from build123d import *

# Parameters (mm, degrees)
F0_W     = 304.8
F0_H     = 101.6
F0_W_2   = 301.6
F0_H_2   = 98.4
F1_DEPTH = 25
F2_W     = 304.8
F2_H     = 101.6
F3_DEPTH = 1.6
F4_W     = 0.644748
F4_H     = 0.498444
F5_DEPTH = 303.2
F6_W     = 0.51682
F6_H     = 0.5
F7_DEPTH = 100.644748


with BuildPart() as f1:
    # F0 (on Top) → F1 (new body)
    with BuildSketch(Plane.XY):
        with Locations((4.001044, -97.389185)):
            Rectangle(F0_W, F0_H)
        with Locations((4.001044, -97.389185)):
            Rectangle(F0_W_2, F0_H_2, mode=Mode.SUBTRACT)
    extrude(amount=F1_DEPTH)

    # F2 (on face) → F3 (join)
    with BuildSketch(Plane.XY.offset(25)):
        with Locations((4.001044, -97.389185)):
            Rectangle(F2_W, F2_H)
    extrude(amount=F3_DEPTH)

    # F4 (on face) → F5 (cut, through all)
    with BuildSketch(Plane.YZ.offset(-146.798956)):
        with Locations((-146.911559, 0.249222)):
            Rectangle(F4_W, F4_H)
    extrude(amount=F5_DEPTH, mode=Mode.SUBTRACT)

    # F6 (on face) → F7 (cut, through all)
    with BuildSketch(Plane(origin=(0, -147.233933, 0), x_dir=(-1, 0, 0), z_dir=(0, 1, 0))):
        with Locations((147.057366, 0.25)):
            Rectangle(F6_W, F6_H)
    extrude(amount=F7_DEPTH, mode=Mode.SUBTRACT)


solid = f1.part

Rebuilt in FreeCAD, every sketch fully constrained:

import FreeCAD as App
import Part
import Sketcher
Q = App.Units.Quantity

doc = App.newDocument("Part")
body = doc.addObject("PartDesign::Body", "Body")

sketch1 = doc.addObject("Sketcher::SketchObject", "Sketch")
body.addObject(sketch1)
sketch1.AttachmentSupport = (doc.XY_Plane, [""])
sketch1.MapMode = "FlatFace"
sketch1.addGeometry([
    Part.LineSegment(App.Vector(-148.398956, -46.589185, 0), App.Vector(-148.398956, -148.189185, 0)),
    Part.LineSegment(App.Vector(-148.398956, -148.189185, 0), App.Vector(156.401044, -148.189185, 0)),
    Part.LineSegment(App.Vector(156.401044, -148.189185, 0), App.Vector(156.401044, -46.589185, 0)),
    Part.LineSegment(App.Vector(156.401044, -46.589185, 0), App.Vector(-148.398956, -46.589185, 0)),
    Part.LineSegment(App.Vector(154.801044, -146.589185, 0), App.Vector(-146.798956, -146.589185, 0)),
    Part.LineSegment(App.Vector(-146.798956, -146.589185, 0), App.Vector(-146.798956, -48.189185, 0)),
    Part.LineSegment(App.Vector(-146.798956, -48.189185, 0), App.Vector(154.801044, -48.189185, 0)),
    Part.LineSegment(App.Vector(154.801044, -48.189185, 0), App.Vector(154.801044, -146.589185, 0)),
], False)
sketch1.addConstraint([
    Sketcher.Constraint("Coincident", 0, 2, 1, 1),
    Sketcher.Constraint("Coincident", 1, 2, 2, 1),
    Sketcher.Constraint("Coincident", 2, 2, 3, 1),
    Sketcher.Constraint("Coincident", 3, 2, 0, 1),
    Sketcher.Constraint("Coincident", 4, 2, 5, 1),
    Sketcher.Constraint("Coincident", 5, 2, 6, 1),
    Sketcher.Constraint("Coincident", 6, 2, 7, 1),
    Sketcher.Constraint("Coincident", 7, 2, 4, 1),
    Sketcher.Constraint("Vertical", 0),
    Sketcher.Constraint("Horizontal", 1),
    Sketcher.Constraint("Vertical", 2),
    Sketcher.Constraint("Horizontal", 3),
    Sketcher.Constraint("Horizontal", 4),
    Sketcher.Constraint("Vertical", 5),
    Sketcher.Constraint("Horizontal", 6),
    Sketcher.Constraint("Vertical", 7),
    Sketcher.Constraint("DistanceX", 1, 1, 1, 2, Q("304.8 mm")),
    Sketcher.Constraint("DistanceX", 4, 2, 4, 1, Q("301.6 mm")),
    Sketcher.Constraint("DistanceY", 0, 2, 0, 1, Q("101.6 mm")),
    Sketcher.Constraint("DistanceY", 5, 1, 5, 2, Q("98.4 mm")),
    Sketcher.Constraint("DistanceY", 4, 2, 3, 2, Q("100 mm")),
    Sketcher.Constraint("DistanceX", 0, 2, 4, 2, Q("1.6 mm")),
    Sketcher.Constraint("DistanceX", 0, 2, -1, 1, Q("148.398956 mm")),
    Sketcher.Constraint("DistanceY", 0, 2, -1, 1, Q("148.189185 mm")),
])
pad1 = doc.addObject("PartDesign::Pad", "Pad")
body.addObject(pad1)
pad1.Profile = sketch1
pad1.Length = 25

sketch2 = doc.addObject("Sketcher::SketchObject", "Sketch001")
body.addObject(sketch2)
sketch2.AttachmentSupport = (doc.XY_Plane, [""])
sketch2.MapMode = "FlatFace"
sketch2.AttachmentOffset = App.Placement(App.Vector(0, 0, 25), App.Rotation())
sketch2.addGeometry([
    Part.LineSegment(App.Vector(-148.398956, -46.589185, 0), App.Vector(-148.398956, -148.189185, 0)),
    Part.LineSegment(App.Vector(-148.398956, -148.189185, 0), App.Vector(156.401044, -148.189185, 0)),
    Part.LineSegment(App.Vector(156.401044, -148.189185, 0), App.Vector(156.401044, -46.589185, 0)),
    Part.LineSegment(App.Vector(156.401044, -46.589185, 0), App.Vector(-148.398956, -46.589185, 0)),
], False)
sketch2.addConstraint([
    Sketcher.Constraint("Coincident", 0, 2, 1, 1),
    Sketcher.Constraint("Coincident", 1, 2, 2, 1),
    Sketcher.Constraint("Coincident", 2, 2, 3, 1),
    Sketcher.Constraint("Coincident", 3, 2, 0, 1),
    Sketcher.Constraint("Vertical", 0),
    Sketcher.Constraint("Horizontal", 1),
    Sketcher.Constraint("Vertical", 2),
    Sketcher.Constraint("Horizontal", 3),
    Sketcher.Constraint("DistanceX", 1, 1, 1, 2, Q("304.8 mm")),
    Sketcher.Constraint("DistanceY", 0, 2, 0, 1, Q("101.6 mm")),
    Sketcher.Constraint("DistanceX", 0, 2, -1, 1, Q("148.398956 mm")),
    Sketcher.Constraint("DistanceY", 0, 2, -1, 1, Q("148.189185 mm")),
])
pad2 = doc.addObject("PartDesign::Pad", "Pad001")
body.addObject(pad2)
pad2.Profile = sketch2
pad2.Length = 1.6

sketch3 = doc.addObject("Sketcher::SketchObject", "Sketch002")
body.addObject(sketch3)
sketch3.AttachmentSupport = (doc.YZ_Plane, [""])
sketch3.MapMode = "FlatFace"
sketch3.AttachmentOffset = App.Placement(App.Vector(0, 0, -146.798956), App.Rotation())
sketch3.addGeometry([
    Part.LineSegment(App.Vector(-147.233933, 0.498444, 0), App.Vector(-147.233933, 0, 0)),
    Part.LineSegment(App.Vector(-147.233933, 0, 0), App.Vector(-146.589185, 0, 0)),
    Part.LineSegment(App.Vector(-146.589185, 0, 0), App.Vector(-146.589185, 0.498444, 0)),
    Part.LineSegment(App.Vector(-146.589185, 0.498444, 0), App.Vector(-147.233933, 0.498444, 0)),
], False)
sketch3.addConstraint([
    Sketcher.Constraint("Coincident", 0, 2, 1, 1),
    Sketcher.Constraint("Coincident", 1, 2, 2, 1),
    Sketcher.Constraint("Coincident", 2, 2, 3, 1),
    Sketcher.Constraint("Coincident", 3, 2, 0, 1),
    Sketcher.Constraint("Vertical", 0),
    Sketcher.Constraint("Horizontal", 1),
    Sketcher.Constraint("Vertical", 2),
    Sketcher.Constraint("Horizontal", 3),
    Sketcher.Constraint("PointOnObject", 0, 2, -1),
    Sketcher.Constraint("DistanceX", 1, 1, 1, 2, Q("0.644748 mm")),
    Sketcher.Constraint("DistanceY", 0, 2, 0, 1, Q("0.498444 mm")),
    Sketcher.Constraint("DistanceX", 0, 2, -1, 1, Q("147.233933 mm")),
])
pocket1 = doc.addObject("PartDesign::Pocket", "Pocket")
body.addObject(pocket1)
pocket1.Profile = sketch3
pocket1.Type = "ThroughAll"
pocket1.Reversed = True

sketch4 = doc.addObject("Sketcher::SketchObject", "Sketch003")
body.addObject(sketch4)
sketch4.AttachmentSupport = (doc.XZ_Plane, [""])
sketch4.MapMode = "FlatFace"
sketch4.AttachmentOffset = App.Placement(App.Vector(0, 0, 147.233933), App.Rotation())
sketch4.addGeometry([
    Part.LineSegment(App.Vector(-146.798956, 0.5, 0), App.Vector(-146.798956, 0, 0)),
    Part.LineSegment(App.Vector(-146.798956, 0, 0), App.Vector(-147.315776, 0, 0)),
    Part.LineSegment(App.Vector(-147.315776, 0, 0), App.Vector(-147.315776, 0.5, 0)),
    Part.LineSegment(App.Vector(-147.315776, 0.5, 0), App.Vector(-146.798956, 0.5, 0)),
], False)
sketch4.addConstraint([
    Sketcher.Constraint("Coincident", 0, 2, 1, 1),
    Sketcher.Constraint("Coincident", 1, 2, 2, 1),
    Sketcher.Constraint("Coincident", 2, 2, 3, 1),
    Sketcher.Constraint("Coincident", 3, 2, 0, 1),
    Sketcher.Constraint("Vertical", 0),
    Sketcher.Constraint("Horizontal", 1),
    Sketcher.Constraint("Vertical", 2),
    Sketcher.Constraint("Horizontal", 3),
    Sketcher.Constraint("PointOnObject", 0, 2, -1),
    Sketcher.Constraint("DistanceY", 0, 2, 0, 1, Q("0.5 mm")),
    Sketcher.Constraint("DistanceX", 1, 2, 1, 1, Q("0.51682 mm")),
    Sketcher.Constraint("DistanceX", 0, 2, -1, 1, Q("146.798956 mm")),
])
pocket2 = doc.addObject("PartDesign::Pocket", "Pocket001")
body.addObject(pocket2)
pocket2.Profile = sketch4
pocket2.Type = "ThroughAll"

doc.recompute()
